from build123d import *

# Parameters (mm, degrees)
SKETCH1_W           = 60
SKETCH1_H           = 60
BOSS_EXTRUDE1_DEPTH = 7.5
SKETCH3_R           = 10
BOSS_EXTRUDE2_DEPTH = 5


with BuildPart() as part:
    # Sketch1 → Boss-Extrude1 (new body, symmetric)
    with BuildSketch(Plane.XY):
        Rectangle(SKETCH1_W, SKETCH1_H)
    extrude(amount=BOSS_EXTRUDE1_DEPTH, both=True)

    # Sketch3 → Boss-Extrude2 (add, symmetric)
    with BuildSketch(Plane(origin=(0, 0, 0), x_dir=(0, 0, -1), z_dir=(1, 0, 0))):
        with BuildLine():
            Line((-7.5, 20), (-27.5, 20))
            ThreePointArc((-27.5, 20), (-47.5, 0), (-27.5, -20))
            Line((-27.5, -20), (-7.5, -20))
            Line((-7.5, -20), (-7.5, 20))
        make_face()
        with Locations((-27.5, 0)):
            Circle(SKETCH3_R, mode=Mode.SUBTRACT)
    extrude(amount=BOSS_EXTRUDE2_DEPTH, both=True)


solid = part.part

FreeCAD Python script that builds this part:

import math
import FreeCAD as App
import Part
import Sketcher

doc = App.newDocument("Part")
body = doc.addObject("PartDesign::Body", "Body")

sketch1 = body.newObject("Sketcher::SketchObject", "Sketch")
sketch1.AttachmentSupport = (doc.getObject("XY_Plane"), [""])
sketch1.MapMode = "FlatFace"
sketch1.addGeometry([
    Part.LineSegment(App.Vector(-30, 30, 0), App.Vector(-30, -30, 0)),
    Part.LineSegment(App.Vector(-30, -30, 0), App.Vector(30, -30, 0)),
    Part.LineSegment(App.Vector(30, -30, 0), App.Vector(30, 30, 0)),
    Part.LineSegment(App.Vector(30, 30, 0), App.Vector(-30, 30, 0)),
], False)
sketch1.addConstraint([
    Sketcher.Constraint("Coincident", 0, 2, 1, 1),
    Sketcher.Constraint("Coincident", 1, 2, 2, 1),
    Sketcher.Constraint("Coincident", 2, 2, 3, 1),
    Sketcher.Constraint("Coincident", 3, 2, 0, 1),
    Sketcher.Constraint("Vertical", 0),
    Sketcher.Constraint("Horizontal", 1),
    Sketcher.Constraint("Vertical", 2),
    Sketcher.Constraint("Horizontal", 3),
    Sketcher.Constraint("Symmetric", 0, 2, 2, 2, -1, 1),
    Sketcher.Constraint("Equal", 3, 0),
    Sketcher.Constraint("DistanceX", 1, 1, 1, 2, 60.0),
])
pad1 = body.newObject("PartDesign::Pad", "Pad")
pad1.Profile = sketch1
pad1.Length = 15
pad1.Midplane = True

sketch2 = body.newObject("Sketcher::SketchObject", "Sketch001")
sketch2.AttachmentSupport = (doc.getObject("YZ_Plane"), [""])
sketch2.MapMode = "FlatFace"
sketch2.addGeometry([
    Part.LineSegment(App.Vector(20, 8, 0), App.Vector(20, 28, 0)),
    Part.ArcOfCircle(Part.Circle(App.Vector(0, 28, 0), App.Vector(0, 0, 1), 20), math.radians(0), math.radians(180)),
    Part.LineSegment(App.Vector(-20, 28, 0), App.Vector(-20, 8, 0)),
    Part.LineSegment(App.Vector(-20, 8, 0), App.Vector(20, 8, 0)),
    Part.Circle(App.Vector(0, 28, 0), App.Vector(0, 0, 1), 10),
], False)
sketch2.addConstraint([
    Sketcher.Constraint("Tangent", 0, 2, 1, 1),
    Sketcher.Constraint("Tangent", 1, 2, 2, 1),
    Sketcher.Constraint("Coincident", 2, 2, 3, 1),
    Sketcher.Constraint("Coincident", 3, 2, 0, 1),
    Sketcher.Constraint("Vertical", 0),
    Sketcher.Constraint("Vertical", 2),
    Sketcher.Constraint("Horizontal", 3),
    Sketcher.Constraint("Coincident", 4, 3, 1, 3),
    Sketcher.Constraint("PointOnObject", 1, 3, -2),
    Sketcher.Constraint("Diameter", 4, 20.0),
    Sketcher.Constraint("Radius", 1, 20.0),
    Sketcher.Constraint("DistanceY", 0, 1, 0, 2, 20.0),
    Sketcher.Constraint("DistanceY", -1, 1, 1, 3, 27.5),
])
pad2 = body.newObject("PartDesign::Pad", "Pad001")
pad2.Profile = sketch2
pad2.Length = 10
pad2.Midplane = True

doc.recompute()
